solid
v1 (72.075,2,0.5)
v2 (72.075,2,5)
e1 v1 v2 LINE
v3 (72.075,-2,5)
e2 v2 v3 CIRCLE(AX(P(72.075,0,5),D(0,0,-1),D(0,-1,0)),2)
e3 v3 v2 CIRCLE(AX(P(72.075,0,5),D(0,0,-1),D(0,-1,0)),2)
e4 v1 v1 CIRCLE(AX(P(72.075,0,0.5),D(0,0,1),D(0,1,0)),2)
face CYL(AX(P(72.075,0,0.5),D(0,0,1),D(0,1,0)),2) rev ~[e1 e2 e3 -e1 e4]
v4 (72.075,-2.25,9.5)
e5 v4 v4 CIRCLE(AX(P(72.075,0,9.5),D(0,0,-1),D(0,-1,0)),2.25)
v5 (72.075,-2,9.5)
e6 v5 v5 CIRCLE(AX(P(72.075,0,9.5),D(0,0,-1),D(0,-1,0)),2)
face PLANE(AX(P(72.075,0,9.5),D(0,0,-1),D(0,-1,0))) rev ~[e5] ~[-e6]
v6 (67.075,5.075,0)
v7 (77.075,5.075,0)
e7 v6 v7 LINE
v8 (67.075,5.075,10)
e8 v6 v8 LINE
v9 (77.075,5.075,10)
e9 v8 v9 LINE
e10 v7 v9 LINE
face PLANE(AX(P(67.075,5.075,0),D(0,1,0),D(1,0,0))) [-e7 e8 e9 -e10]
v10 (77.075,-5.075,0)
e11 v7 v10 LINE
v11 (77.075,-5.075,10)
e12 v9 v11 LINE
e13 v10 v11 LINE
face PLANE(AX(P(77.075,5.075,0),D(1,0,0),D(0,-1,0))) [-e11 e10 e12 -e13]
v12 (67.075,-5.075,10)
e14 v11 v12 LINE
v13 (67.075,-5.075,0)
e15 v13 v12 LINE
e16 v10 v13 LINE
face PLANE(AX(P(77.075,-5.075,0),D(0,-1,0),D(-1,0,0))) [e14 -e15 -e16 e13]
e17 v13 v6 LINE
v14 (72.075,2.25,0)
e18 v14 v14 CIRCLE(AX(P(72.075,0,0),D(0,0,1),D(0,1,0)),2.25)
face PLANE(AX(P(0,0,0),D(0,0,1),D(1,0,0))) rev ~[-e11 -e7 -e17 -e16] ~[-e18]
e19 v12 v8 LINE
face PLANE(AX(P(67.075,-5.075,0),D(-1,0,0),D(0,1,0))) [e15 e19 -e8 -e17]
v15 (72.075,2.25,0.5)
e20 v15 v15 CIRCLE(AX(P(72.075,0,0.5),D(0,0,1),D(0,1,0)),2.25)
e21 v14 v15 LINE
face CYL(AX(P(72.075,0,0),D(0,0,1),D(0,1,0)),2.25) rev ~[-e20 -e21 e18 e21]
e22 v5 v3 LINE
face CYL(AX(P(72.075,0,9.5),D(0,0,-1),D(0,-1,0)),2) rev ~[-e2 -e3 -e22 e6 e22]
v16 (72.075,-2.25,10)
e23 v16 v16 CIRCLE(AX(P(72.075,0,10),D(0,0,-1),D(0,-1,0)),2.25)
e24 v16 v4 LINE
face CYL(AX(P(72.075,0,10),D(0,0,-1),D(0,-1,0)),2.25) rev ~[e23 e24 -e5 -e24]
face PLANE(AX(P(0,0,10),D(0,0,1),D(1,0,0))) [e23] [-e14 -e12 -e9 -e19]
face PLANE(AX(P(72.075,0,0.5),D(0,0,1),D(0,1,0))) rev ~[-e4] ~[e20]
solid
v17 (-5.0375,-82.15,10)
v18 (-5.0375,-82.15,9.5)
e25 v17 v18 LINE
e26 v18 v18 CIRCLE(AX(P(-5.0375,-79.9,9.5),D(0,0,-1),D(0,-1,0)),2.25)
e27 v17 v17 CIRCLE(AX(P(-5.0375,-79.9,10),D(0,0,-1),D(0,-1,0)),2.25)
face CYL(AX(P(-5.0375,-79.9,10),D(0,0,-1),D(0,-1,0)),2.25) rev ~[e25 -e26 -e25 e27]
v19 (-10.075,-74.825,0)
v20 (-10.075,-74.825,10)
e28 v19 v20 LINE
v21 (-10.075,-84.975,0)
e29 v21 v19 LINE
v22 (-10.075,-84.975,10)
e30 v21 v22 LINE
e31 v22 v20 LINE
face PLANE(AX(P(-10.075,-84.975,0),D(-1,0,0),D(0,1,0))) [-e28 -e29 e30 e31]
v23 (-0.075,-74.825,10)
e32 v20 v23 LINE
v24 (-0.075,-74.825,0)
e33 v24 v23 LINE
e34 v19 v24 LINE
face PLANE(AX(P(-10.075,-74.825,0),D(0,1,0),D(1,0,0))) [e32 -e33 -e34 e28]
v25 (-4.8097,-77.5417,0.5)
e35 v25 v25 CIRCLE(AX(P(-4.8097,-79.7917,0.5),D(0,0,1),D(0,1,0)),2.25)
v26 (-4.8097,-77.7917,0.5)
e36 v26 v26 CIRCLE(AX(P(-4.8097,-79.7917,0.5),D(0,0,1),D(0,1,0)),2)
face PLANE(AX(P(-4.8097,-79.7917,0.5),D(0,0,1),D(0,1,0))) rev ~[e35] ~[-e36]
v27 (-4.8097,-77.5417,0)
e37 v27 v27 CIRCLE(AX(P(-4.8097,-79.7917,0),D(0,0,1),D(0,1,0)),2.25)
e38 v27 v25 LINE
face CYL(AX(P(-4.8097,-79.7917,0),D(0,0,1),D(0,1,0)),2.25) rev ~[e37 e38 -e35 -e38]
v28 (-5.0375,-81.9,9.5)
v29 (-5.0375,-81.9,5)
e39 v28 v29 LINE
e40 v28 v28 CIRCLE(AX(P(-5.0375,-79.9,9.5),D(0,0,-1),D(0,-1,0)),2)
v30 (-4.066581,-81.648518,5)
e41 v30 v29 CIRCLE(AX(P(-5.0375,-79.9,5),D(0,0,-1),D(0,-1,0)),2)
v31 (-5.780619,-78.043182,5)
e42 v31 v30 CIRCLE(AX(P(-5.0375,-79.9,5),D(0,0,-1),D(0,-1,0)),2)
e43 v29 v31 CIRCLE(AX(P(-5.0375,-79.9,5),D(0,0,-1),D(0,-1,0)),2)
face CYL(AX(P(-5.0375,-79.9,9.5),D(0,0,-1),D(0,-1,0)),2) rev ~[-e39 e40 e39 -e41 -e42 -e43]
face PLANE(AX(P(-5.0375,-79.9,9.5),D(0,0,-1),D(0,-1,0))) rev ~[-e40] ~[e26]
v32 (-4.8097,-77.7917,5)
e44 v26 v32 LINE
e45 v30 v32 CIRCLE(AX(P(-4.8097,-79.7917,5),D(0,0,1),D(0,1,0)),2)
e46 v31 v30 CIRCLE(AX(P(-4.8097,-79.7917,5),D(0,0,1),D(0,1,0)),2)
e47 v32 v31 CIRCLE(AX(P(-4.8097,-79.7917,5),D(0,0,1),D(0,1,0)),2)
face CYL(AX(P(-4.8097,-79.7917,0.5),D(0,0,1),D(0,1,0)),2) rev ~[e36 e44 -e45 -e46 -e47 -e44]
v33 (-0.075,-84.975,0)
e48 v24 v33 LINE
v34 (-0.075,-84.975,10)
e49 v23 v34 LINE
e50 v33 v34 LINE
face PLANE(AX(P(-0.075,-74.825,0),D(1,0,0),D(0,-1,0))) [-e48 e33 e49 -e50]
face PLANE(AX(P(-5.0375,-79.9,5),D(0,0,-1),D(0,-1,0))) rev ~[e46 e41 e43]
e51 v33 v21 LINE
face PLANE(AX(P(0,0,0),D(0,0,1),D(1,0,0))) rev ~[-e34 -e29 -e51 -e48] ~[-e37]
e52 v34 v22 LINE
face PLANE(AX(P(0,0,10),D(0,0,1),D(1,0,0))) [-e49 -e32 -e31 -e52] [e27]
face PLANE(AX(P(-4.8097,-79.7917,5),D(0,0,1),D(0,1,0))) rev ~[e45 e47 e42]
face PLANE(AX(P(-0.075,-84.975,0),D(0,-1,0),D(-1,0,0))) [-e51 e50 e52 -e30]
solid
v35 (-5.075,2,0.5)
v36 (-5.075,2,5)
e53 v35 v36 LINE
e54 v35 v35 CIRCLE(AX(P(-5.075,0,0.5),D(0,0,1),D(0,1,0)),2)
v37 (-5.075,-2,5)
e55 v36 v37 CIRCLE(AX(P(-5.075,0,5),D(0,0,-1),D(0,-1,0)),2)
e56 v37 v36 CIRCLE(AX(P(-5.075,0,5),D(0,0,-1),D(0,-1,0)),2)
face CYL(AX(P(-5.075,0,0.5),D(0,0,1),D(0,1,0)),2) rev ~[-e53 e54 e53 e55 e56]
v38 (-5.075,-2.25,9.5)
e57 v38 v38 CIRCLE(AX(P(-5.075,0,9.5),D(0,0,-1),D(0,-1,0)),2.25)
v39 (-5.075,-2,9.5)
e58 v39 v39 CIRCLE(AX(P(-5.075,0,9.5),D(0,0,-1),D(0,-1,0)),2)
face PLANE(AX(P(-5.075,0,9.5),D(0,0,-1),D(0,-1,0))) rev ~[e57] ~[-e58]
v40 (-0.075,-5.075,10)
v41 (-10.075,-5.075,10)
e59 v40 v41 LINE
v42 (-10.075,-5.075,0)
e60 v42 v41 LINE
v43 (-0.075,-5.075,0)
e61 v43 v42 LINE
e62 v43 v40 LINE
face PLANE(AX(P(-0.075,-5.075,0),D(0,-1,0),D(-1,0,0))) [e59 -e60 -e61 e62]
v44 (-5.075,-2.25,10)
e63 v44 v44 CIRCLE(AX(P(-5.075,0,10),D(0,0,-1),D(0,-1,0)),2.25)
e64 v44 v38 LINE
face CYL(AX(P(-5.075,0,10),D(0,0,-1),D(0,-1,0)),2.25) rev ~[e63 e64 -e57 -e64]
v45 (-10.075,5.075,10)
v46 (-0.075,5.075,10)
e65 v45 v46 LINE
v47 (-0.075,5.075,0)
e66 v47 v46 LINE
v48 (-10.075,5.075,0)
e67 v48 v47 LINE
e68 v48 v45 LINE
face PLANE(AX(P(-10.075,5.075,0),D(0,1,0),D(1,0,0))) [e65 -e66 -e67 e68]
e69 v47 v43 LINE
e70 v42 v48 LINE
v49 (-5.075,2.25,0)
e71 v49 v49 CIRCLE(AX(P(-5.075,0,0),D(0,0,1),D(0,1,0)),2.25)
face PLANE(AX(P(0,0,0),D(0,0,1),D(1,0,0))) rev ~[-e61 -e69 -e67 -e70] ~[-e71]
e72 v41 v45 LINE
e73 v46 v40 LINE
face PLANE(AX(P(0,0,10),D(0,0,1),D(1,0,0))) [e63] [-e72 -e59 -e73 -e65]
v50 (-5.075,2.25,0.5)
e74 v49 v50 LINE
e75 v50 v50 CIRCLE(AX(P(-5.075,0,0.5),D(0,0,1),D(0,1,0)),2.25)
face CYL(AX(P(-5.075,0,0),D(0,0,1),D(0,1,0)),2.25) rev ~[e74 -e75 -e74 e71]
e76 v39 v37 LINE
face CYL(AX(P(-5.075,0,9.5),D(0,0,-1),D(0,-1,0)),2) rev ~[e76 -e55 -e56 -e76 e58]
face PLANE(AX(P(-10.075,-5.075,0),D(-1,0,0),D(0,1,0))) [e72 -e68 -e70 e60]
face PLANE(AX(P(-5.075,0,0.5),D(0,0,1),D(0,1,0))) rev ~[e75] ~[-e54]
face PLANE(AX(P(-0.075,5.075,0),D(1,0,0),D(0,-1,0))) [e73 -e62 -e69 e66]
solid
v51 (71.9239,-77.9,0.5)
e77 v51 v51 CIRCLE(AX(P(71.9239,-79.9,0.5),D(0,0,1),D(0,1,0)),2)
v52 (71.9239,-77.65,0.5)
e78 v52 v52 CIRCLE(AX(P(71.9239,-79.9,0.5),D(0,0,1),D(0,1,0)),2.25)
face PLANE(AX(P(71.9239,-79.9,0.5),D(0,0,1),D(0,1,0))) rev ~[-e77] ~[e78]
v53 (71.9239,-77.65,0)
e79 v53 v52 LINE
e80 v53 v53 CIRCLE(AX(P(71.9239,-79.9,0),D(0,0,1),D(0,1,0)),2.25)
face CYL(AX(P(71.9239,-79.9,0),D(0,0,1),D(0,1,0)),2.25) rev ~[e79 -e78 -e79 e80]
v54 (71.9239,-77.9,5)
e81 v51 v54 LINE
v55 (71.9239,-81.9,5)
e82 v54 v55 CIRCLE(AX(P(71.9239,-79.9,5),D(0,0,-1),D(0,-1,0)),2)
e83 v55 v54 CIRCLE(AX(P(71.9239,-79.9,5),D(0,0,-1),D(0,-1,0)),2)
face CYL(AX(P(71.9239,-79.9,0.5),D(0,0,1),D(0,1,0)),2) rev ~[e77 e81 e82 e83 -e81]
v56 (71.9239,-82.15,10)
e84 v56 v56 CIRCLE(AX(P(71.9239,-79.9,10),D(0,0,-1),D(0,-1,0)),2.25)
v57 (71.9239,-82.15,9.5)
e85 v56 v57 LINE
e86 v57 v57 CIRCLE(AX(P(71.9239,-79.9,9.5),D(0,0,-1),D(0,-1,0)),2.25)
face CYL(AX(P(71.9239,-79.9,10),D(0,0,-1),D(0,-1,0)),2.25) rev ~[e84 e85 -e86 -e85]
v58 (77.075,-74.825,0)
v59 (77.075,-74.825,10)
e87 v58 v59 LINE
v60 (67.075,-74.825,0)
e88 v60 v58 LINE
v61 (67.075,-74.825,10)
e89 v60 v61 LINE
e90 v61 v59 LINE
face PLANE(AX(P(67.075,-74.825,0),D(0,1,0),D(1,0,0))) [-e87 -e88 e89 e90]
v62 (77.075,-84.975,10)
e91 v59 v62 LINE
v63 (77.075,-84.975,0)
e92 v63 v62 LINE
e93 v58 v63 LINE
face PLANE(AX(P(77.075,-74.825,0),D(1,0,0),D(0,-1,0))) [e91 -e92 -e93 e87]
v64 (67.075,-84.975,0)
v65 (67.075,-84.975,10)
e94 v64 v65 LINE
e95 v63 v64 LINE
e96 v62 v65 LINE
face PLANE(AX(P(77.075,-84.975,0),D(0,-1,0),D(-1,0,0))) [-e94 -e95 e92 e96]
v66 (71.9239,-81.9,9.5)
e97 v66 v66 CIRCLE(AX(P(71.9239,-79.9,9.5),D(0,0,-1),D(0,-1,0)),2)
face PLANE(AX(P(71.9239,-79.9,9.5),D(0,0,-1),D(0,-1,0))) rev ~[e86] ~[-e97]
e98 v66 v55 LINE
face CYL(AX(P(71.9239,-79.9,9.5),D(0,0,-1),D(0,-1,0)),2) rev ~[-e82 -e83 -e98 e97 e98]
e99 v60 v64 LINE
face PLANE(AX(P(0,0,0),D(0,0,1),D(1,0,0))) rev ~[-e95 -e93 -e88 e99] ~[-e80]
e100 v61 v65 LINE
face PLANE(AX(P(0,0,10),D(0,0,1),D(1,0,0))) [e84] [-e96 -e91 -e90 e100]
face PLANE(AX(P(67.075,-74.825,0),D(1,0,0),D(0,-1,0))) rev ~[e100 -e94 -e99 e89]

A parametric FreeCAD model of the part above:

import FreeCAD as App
import Part
import Sketcher

V = App.Vector


def add_polygon(sketch, points):
    """Adds a closed chain of lines whose ends are joined by coincident constraints."""
    first, n = sketch.GeometryCount, len(points)
    for a, b in zip(points, points[1:] + points[:1]):
        sketch.addGeometry(Part.LineSegment(App.Vector(*a, 0), App.Vector(*b, 0)), False)
    for i in range(n):
        sketch.addConstraint(Sketcher.Constraint("Coincident", first + i, 2, first + (i + 1) % n, 1))

doc = App.newDocument("Part")
params = doc.addObject("Spreadsheet::Sheet", "Params")
for row, (alias, value) in enumerate([
    ("sketch1_width", "10 mm"),
    ("sketch1_height", "10.15 mm"),
    ("pad1_length", "10 mm"),
    ("sketch2_diameter", "4 mm"),
    ("hole_diameter", "4 mm"),
    ("hole_depth", "5 mm"),
    ("hole_cbore_diameter", "4.5 mm"),
    ("hole_cbore_depth", "0.5 mm"),
    ("sketch3_diameter", "4 mm"),
    ("hole2_diameter", "4 mm"),
    ("hole2_depth", "5 mm"),
    ("hole2_cbore_diameter", "4.5 mm"),
    ("hole2_cbore_depth", "0.5 mm"),
], start=1):
    params.set(f"A{row}", alias)
    params.set(f"B{row}", "=" + value)
    params.setAlias(f"B{row}", alias)

body = doc.addObject("PartDesign::Body", "Body")
body.AllowCompound = True

# Sketch on XY plane
sketch1 = body.newObject("Sketcher::SketchObject", "Sketch")
sketch1.AttachmentSupport = (doc.getObject("XY_Plane"), [""])
sketch1.MapMode = "FlatFace"
add_polygon(sketch1, [(-0.075, 5.075), (-10.075, 5.075), (-10.075, -5.075), (-0.075, -5.075)])  # lines 0-3
add_polygon(sketch1, [(67.075, 5.075), (67.075, -5.075), (77.075, -5.075), (77.075, 5.075)])  # lines 4-7
add_polygon(sketch1, [(67.075, -84.975), (77.075, -84.975), (77.075, -74.825), (67.075, -74.825)])  # lines 8-11
add_polygon(sketch1, [(-0.075, -74.825), (-10.075, -74.825), (-10.075, -84.975), (-0.075, -84.975)])  # lines 12-15
sketch1.addConstraint(Sketcher.Constraint("Horizontal", 0))
sketch1.addConstraint(Sketcher.Constraint("Vertical", 1))
sketch1.addConstraint(Sketcher.Constraint("Horizontal", 2))
sketch1.addConstraint(Sketcher.Constraint("Vertical", 3))
sketch1.addConstraint(Sketcher.Constraint("Vertical", 4))
sketch1.addConstraint(Sketcher.Constraint("Horizontal", 5))
sketch1.addConstraint(Sketcher.Constraint("Vertical", 6))
sketch1.addConstraint(Sketcher.Constraint("Horizontal", 7))
sketch1.addConstraint(Sketcher.Constraint("Horizontal", 8))
sketch1.addConstraint(Sketcher.Constraint("Vertical", 9))
sketch1.addConstraint(Sketcher.Constraint("Horizontal", 10))
sketch1.addConstraint(Sketcher.Constraint("Vertical", 11))
sketch1.addConstraint(Sketcher.Constraint("Horizontal", 12))
sketch1.addConstraint(Sketcher.Constraint("Vertical", 13))
sketch1.addConstraint(Sketcher.Constraint("Horizontal", 14))
sketch1.addConstraint(Sketcher.Constraint("Vertical", 15))
sketch1.addConstraint(Sketcher.Constraint("Horizontal", 2, 2, 4, 2))
sketch1.addConstraint(Sketcher.Constraint("Horizontal", 3, 2, 6, 2))
sketch1.addConstraint(Sketcher.Constraint("Horizontal", 10, 2, 12, 2))
sketch1.addConstraint(Sketcher.Constraint("Horizontal", 11, 2, 13, 2))
sketch1.addConstraint(Sketcher.Constraint("Vertical", 6, 2, 8, 2))
sketch1.addConstraint(Sketcher.Constraint("Vertical", 7, 2, 10, 2))
sketch1.addConstraint(Sketcher.Constraint("Vertical", 1, 2, 12, 2))
sketch1.addConstraint(Sketcher.Constraint("Vertical", 3, 2, 14, 2))
sketch1.addConstraint(Sketcher.Constraint("Equal", 2, 5))
sketch1.addConstraint(Sketcher.Constraint("Equal", 6, 9))
sketch1.addConstraint(Sketcher.Constraint("DistanceX", 0, 2, 0, 1, 10.0))
sketch1.addConstraint(Sketcher.Constraint("DistanceY", 1, 2, 1, 1, 10.15))
sketch1.addConstraint(Sketcher.Constraint("DistanceY", 8, 2, 5, 2, 79.9))
sketch1.addConstraint(Sketcher.Constraint("DistanceX", 2, 2, 4, 2, 67.15))
sketch1.addConstraint(Sketcher.Constraint("DistanceX", 0, 2, -1, 1, 10.075))
sketch1.addConstraint(Sketcher.Constraint("DistanceY", -1, 1, 0, 2, 5.075))
sketch1.setExpression("Constraints[42]", "Params.sketch1_width")
sketch1.setExpression("Constraints[43]", "Params.sketch1_height")
pad1 = body.newObject("PartDesign::Pad", "Pad")
pad1.Profile = sketch1
pad1.setExpression("Length", "Params.pad1_length")

# Sketch on XY plane
sketch2 = body.newObject("Sketcher::SketchObject", "Sketch001")
sketch2.AttachmentSupport = (doc.getObject("XY_Plane"), [""])
sketch2.MapMode = "FlatFace"
sketch2.AttachmentOffset = App.Placement(V(0, 0, 10), App.Rotation())
sketch2.addGeometry(Part.Circle(V(72.075, 0, 0), V(0, 0, 1), 2), False)
sketch2.addGeometry(Part.Circle(V(71.9239, -79.9, 0), V(0, 0, 1), 2), False)
sketch2.addGeometry(Part.Circle(V(-5.0375, -79.9, 0), V(0, 0, 1), 2), False)
sketch2.addGeometry(Part.Circle(V(-5.075, 0, 0), V(0, 0, 1), 2), False)
sketch2.addConstraint(Sketcher.Constraint("Equal", 0, 1))
sketch2.addConstraint(Sketcher.Constraint("Equal", 1, 2))
sketch2.addConstraint(Sketcher.Constraint("Equal", 2, 3))
sketch2.addConstraint(Sketcher.Constraint("PointOnObject", 0, 3, -1))
sketch2.addConstraint(Sketcher.Constraint("PointOnObject", 3, 3, -1))
sketch2.addConstraint(Sketcher.Constraint("Horizontal", 1, 3, 2, 3))
sketch2.addConstraint(Sketcher.Constraint("Diameter", 0, 4.0))
sketch2.addConstraint(Sketcher.Constraint("DistanceY", 1, 3, -1, 1, 79.9))
sketch2.addConstraint(Sketcher.Constraint("DistanceX", 3, 3, 0, 3, 77.15))
sketch2.addConstraint(Sketcher.Constraint("DistanceX", -1, 1, 0, 3, 72.075))
sketch2.addConstraint(Sketcher.Constraint("DistanceX", -1, 1, 1, 3, 71.924))
sketch2.addConstraint(Sketcher.Constraint("DistanceX", 2, 3, -1, 1, 5.0375))
sketch2.setExpression("Constraints[6]", "Params.sketch2_diameter")
doc.recompute()
hole = body.newObject("PartDesign::Hole", "Hole")
hole.Profile = sketch2
hole.ThreadType = "None"
hole.setExpression("Diameter", "Params.hole_diameter")
hole.DepthType = "Dimension"
hole.setExpression("Depth", "Params.hole_depth")
hole.DrillPoint = "Flat"
hole.HoleCutType = "Counterbore"
hole.setExpression("HoleCutDiameter", "Params.hole_cbore_diameter")
hole.setExpression("HoleCutDepth", "Params.hole_cbore_depth")

# Sketch on XY plane
sketch3 = body.newObject("Sketcher::SketchObject", "Sketch002")
sketch3.AttachmentSupport = (doc.getObject("XY_Plane"), [""])
sketch3.MapMode = "FlatFace"
sketch3.addGeometry(Part.Circle(V(72.075, 0, 0), V(0, 0, 1), 2), False)
sketch3.addGeometry(Part.Circle(V(-5.075, 0, 0), V(0, 0, 1), 2), False)
sketch3.addGeometry(Part.Circle(V(71.9239, -79.9, 0), V(0, 0, 1), 2), False)
sketch3.addGeometry(Part.Circle(V(-4.8097, -79.7917, 0), V(0, 0, 1), 2), False)
sketch3.addConstraint(Sketcher.Constraint("Equal", 0, 1))
sketch3.addConstraint(Sketcher.Constraint("Equal", 1, 2))
sketch3.addConstraint(Sketcher.Constraint("Equal", 2, 3))
sketch3.addConstraint(Sketcher.Constraint("PointOnObject", 0, 3, -1))
sketch3.addConstraint(Sketcher.Constraint("PointOnObject", 1, 3, -1))
sketch3.addConstraint(Sketcher.Constraint("Diameter", 0, 4.0))
sketch3.addConstraint(Sketcher.Constraint("DistanceY", 2, 3, -1, 1, 79.9))
sketch3.addConstraint(Sketcher.Constraint("DistanceX", 1, 3, 0, 3, 77.15))
sketch3.addConstraint(Sketcher.Constraint("DistanceX", -1, 1, 0, 3, 72.075))
sketch3.addConstraint(Sketcher.Constraint("DistanceX", -1, 1, 2, 3, 71.924))
sketch3.addConstraint(Sketcher.Constraint("DistanceX", 3, 3, -1, 1, 4.8097))
sketch3.addConstraint(Sketcher.Constraint("DistanceY", 3, 3, -1, 1, 79.7917))
sketch3.setExpression("Constraints[5]", "Params.sketch3_diameter")
doc.recompute()
hole2 = body.newObject("PartDesign::Hole", "Hole001")
hole2.Profile = sketch3
hole2.ThreadType = "None"
hole2.setExpression("Diameter", "Params.hole2_diameter")
hole2.DepthType = "Dimension"
hole2.setExpression("Depth", "Params.hole2_depth")
hole2.DrillPoint = "Flat"
hole2.HoleCutType = "Counterbore"
hole2.setExpression("HoleCutDiameter", "Params.hole2_cbore_diameter")
hole2.setExpression("HoleCutDepth", "Params.hole2_cbore_depth")
hole2.Reversed = True

doc.recompute()
